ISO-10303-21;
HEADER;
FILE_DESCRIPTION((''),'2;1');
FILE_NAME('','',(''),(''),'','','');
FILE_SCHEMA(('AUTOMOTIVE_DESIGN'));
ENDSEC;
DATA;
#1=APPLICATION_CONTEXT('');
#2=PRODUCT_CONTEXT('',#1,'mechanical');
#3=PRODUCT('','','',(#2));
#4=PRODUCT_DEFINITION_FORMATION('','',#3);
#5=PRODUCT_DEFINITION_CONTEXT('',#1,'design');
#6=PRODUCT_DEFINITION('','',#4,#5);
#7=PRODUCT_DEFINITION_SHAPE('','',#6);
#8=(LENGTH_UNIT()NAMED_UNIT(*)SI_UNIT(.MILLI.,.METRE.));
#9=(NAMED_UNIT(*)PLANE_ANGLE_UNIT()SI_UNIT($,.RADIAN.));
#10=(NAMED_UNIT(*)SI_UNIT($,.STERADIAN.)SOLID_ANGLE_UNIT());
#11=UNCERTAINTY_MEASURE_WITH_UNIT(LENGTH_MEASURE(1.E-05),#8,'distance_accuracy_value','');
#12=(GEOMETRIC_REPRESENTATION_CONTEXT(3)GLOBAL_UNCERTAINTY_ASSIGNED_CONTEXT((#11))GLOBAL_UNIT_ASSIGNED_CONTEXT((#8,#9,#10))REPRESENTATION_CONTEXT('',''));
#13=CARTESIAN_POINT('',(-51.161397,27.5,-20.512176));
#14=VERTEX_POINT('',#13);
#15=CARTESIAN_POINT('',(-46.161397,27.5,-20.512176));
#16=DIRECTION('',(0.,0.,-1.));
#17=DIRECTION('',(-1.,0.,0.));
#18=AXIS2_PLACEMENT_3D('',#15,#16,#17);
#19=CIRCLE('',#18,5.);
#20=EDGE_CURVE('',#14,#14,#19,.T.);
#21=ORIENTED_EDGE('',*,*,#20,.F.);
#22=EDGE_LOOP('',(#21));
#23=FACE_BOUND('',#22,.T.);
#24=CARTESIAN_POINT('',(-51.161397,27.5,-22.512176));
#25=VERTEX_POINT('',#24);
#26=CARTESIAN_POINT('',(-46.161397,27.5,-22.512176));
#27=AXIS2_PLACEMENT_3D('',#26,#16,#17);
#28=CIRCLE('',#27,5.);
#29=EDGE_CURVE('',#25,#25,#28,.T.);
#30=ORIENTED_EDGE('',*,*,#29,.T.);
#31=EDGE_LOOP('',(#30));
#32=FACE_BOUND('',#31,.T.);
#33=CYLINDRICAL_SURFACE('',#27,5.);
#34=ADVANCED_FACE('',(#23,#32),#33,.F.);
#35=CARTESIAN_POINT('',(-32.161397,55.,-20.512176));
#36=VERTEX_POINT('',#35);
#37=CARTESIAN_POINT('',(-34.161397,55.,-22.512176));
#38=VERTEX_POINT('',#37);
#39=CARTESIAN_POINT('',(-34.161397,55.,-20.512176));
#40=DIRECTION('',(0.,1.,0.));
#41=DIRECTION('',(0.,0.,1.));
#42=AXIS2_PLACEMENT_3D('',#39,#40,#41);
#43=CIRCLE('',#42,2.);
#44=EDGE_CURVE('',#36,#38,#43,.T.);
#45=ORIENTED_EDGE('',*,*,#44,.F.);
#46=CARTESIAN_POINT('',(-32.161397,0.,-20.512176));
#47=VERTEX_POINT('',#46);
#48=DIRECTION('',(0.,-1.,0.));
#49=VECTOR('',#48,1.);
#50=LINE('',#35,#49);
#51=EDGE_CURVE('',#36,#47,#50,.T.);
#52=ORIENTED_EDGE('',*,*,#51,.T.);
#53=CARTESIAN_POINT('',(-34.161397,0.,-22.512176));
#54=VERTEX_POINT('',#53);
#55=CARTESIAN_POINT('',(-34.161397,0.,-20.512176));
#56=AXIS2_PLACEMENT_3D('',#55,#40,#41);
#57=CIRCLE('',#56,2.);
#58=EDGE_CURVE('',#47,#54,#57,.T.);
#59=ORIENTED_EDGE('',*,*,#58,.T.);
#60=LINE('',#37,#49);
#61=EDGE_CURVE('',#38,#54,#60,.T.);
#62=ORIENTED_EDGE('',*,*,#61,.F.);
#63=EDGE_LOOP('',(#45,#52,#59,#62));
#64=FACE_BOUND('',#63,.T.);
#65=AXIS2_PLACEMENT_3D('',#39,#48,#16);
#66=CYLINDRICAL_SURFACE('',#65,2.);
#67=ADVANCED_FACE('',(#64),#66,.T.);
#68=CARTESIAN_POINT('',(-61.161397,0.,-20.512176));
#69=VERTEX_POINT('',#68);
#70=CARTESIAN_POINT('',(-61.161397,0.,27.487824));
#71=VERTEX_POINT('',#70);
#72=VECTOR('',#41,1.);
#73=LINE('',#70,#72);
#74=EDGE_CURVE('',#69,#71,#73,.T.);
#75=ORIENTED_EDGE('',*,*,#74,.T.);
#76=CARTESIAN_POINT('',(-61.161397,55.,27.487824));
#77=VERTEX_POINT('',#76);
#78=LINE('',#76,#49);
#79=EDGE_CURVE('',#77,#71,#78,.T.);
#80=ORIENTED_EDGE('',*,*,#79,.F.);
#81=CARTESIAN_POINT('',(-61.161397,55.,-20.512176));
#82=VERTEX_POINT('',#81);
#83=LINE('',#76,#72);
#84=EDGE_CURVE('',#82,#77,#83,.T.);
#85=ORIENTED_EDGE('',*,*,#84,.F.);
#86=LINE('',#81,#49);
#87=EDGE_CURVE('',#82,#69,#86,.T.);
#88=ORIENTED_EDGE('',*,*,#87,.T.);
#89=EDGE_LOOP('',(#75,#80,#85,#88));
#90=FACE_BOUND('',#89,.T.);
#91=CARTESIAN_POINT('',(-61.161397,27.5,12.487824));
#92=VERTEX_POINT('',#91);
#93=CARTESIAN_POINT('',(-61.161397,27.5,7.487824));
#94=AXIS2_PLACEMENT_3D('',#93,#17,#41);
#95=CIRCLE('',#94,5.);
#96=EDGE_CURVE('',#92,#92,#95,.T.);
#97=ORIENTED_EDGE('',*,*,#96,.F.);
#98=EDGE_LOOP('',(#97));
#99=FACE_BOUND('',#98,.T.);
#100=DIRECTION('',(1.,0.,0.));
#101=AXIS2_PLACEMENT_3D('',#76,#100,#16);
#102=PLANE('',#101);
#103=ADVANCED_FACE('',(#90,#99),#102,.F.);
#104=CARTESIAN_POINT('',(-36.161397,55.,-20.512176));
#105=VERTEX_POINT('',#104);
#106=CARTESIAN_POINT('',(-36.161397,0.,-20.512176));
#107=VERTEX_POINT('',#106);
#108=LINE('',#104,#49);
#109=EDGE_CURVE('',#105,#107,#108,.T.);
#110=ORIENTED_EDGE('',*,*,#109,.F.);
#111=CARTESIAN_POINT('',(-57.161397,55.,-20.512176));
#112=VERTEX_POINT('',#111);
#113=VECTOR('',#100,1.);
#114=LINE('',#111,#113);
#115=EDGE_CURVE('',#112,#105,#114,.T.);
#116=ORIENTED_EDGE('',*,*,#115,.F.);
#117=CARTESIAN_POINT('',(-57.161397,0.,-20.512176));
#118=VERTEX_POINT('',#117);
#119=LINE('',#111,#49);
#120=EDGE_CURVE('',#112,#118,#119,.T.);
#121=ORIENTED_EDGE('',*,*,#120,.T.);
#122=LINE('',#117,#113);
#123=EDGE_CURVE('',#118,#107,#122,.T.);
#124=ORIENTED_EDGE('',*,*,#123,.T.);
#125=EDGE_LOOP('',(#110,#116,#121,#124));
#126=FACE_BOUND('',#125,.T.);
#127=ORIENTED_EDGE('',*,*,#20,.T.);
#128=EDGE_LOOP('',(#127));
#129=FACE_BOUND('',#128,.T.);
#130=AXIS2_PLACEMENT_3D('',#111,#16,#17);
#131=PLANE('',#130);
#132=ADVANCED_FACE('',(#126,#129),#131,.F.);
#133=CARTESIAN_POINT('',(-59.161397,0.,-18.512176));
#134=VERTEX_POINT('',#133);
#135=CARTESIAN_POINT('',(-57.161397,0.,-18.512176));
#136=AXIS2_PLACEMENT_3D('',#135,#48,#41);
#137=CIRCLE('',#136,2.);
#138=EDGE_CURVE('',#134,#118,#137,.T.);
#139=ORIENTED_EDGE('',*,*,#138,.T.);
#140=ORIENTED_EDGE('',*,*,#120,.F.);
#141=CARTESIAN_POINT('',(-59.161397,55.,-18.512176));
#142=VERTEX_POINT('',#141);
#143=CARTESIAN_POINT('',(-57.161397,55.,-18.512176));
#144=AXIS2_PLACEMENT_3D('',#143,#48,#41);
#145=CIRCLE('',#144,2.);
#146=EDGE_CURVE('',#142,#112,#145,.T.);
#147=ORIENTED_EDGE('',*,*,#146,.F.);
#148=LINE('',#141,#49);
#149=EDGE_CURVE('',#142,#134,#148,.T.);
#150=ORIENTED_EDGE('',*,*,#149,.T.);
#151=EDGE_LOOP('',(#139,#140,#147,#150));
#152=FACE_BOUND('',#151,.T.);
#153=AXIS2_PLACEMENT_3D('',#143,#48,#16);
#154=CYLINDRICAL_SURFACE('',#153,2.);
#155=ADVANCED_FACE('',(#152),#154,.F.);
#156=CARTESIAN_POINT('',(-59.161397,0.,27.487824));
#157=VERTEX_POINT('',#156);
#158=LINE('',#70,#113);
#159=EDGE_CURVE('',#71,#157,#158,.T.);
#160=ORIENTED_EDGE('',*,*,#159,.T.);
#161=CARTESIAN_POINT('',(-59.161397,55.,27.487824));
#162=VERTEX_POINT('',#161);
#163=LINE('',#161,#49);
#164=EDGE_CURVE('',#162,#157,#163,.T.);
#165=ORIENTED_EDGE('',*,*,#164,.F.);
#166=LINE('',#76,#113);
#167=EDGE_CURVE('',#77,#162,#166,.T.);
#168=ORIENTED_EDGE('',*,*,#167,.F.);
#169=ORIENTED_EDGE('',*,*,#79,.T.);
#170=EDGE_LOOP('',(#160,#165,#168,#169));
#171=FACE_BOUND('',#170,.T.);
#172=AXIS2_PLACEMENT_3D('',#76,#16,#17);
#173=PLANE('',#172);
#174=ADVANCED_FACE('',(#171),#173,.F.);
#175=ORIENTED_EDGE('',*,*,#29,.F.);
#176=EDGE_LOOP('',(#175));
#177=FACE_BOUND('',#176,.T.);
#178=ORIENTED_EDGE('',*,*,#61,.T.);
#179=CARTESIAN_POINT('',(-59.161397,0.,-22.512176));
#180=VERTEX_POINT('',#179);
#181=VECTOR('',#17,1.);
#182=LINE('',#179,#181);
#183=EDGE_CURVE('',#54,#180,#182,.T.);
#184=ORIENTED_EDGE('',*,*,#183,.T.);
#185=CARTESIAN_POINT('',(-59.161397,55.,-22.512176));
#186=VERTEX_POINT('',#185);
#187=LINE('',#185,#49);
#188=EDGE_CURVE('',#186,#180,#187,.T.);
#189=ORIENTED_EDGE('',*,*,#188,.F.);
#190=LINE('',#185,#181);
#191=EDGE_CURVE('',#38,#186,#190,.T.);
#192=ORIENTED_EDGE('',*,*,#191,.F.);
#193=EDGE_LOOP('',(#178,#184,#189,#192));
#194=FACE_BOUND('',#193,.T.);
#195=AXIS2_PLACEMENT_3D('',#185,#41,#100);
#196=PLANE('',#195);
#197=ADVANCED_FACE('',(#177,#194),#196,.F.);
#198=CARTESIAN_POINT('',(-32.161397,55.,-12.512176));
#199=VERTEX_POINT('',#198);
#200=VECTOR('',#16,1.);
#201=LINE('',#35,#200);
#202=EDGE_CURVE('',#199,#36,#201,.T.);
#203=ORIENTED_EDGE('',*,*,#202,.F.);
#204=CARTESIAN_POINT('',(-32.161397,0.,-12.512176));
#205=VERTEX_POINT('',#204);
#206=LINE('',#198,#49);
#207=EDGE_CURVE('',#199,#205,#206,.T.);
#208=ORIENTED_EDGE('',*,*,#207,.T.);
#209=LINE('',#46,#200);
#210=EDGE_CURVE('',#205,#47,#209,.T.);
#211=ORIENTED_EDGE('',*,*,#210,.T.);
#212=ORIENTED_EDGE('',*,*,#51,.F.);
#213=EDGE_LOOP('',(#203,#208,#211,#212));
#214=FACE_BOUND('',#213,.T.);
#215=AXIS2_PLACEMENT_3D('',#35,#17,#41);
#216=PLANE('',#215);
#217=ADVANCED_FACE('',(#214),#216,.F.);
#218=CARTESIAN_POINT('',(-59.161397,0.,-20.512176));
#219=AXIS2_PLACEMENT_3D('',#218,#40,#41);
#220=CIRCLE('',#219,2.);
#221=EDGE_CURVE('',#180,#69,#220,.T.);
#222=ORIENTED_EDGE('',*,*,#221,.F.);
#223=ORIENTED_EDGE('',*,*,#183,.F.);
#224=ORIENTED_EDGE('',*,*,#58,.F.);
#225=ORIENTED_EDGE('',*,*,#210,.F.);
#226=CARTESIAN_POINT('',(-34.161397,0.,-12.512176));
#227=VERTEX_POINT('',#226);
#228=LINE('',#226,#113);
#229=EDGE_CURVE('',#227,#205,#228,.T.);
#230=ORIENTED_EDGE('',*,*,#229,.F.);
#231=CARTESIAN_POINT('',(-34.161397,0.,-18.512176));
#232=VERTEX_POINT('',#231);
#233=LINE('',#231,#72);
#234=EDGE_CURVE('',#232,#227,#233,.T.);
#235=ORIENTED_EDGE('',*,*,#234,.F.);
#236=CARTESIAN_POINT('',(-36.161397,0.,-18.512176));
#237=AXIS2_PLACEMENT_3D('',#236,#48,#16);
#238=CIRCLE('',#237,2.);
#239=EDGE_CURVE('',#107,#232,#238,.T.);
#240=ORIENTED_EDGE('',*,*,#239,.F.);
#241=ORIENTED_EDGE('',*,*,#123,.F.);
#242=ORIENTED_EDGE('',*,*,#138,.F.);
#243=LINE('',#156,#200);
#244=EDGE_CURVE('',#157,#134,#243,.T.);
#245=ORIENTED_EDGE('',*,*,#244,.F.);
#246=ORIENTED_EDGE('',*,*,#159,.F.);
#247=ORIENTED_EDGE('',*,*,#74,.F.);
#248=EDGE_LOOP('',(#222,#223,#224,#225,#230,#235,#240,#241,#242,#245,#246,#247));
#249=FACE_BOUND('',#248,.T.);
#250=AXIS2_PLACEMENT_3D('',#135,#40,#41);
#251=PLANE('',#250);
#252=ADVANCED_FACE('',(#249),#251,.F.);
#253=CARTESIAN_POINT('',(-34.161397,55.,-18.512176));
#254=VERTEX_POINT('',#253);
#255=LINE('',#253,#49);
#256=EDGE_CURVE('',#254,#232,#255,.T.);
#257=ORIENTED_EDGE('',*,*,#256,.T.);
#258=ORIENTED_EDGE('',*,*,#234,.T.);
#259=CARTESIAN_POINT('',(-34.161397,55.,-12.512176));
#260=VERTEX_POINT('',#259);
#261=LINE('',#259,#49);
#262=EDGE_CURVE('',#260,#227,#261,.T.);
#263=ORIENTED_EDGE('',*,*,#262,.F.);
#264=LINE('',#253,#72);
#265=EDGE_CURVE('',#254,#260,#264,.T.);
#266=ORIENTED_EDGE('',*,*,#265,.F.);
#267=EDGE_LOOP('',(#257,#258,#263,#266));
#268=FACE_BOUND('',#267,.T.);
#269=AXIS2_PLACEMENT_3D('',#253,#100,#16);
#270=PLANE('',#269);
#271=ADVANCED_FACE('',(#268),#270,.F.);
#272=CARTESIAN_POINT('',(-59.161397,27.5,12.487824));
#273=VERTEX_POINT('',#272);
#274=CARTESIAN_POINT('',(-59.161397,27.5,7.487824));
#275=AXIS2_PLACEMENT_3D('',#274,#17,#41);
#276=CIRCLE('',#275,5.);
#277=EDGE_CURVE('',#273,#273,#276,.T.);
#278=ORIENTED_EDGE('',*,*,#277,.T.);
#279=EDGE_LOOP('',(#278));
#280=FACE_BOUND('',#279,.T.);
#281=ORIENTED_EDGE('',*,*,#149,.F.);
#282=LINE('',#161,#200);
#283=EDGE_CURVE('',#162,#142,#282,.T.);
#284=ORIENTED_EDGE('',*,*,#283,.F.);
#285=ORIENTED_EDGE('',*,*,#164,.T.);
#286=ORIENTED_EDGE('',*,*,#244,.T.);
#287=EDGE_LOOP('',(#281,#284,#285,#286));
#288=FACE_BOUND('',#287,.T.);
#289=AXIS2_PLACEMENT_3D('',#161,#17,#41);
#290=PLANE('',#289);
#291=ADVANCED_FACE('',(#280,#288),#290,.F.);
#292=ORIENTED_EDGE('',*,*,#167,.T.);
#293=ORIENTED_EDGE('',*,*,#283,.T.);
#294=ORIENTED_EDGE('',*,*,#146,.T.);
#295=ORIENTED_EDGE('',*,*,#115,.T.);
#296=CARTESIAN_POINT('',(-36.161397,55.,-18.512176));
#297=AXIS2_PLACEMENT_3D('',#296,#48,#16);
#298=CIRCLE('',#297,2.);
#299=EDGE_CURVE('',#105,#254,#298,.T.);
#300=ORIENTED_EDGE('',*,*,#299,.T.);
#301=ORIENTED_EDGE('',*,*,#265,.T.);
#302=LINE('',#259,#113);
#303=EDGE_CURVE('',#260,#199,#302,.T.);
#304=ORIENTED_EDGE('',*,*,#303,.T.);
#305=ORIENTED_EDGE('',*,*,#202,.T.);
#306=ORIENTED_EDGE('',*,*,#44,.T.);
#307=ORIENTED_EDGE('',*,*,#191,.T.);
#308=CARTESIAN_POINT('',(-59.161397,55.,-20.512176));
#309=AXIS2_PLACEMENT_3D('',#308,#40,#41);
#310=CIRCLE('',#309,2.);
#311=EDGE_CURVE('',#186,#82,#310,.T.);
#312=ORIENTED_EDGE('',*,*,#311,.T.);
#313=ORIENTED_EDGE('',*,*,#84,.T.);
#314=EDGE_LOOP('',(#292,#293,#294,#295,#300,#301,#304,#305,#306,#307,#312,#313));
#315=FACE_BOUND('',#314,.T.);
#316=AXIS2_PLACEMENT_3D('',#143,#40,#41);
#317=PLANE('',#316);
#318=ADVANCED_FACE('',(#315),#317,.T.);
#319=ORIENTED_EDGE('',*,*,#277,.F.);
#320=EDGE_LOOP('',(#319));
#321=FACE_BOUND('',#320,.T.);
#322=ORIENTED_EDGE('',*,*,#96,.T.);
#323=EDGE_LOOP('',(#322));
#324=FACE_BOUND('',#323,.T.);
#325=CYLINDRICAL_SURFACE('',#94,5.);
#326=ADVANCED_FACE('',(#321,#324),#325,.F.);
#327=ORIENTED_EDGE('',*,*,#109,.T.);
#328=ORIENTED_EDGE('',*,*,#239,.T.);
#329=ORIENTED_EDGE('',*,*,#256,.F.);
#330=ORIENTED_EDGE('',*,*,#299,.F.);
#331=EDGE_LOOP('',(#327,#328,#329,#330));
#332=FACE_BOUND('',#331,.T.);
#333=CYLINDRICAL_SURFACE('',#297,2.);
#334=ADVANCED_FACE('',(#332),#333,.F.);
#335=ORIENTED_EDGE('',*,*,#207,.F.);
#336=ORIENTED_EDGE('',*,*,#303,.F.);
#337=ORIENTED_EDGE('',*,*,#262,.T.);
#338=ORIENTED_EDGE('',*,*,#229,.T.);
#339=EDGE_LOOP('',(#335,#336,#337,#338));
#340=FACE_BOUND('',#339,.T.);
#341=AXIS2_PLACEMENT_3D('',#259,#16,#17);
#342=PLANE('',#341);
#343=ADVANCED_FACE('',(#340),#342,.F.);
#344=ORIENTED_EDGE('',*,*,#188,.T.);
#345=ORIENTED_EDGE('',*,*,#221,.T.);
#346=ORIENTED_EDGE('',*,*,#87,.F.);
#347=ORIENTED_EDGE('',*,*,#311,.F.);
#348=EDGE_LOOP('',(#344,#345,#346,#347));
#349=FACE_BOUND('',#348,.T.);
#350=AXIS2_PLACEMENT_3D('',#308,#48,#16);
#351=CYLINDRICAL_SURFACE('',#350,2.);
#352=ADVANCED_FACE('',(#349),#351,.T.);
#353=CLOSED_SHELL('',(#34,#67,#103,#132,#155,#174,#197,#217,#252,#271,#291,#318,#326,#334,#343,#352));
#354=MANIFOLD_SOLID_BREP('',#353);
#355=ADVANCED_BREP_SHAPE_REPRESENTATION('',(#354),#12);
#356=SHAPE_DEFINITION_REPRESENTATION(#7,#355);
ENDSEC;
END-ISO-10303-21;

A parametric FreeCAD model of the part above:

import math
import FreeCAD as App
import Part
import Sketcher

V = App.Vector

doc = App.newDocument("Part")
body = doc.addObject("PartDesign::Body", "Body")

sketch1 = body.newObject("Sketcher::SketchObject", "Sketch")
sketch1.AttachmentSupport = (doc.getObject("XZ_Plane"), [""])
sketch1.MapMode = "FlatFace"
sketch1.addGeometry(Part.LineSegment(V(-61.2, -20.5, 0), V(-61.2, 27.5, 0)), False)
sketch1.addGeometry(Part.LineSegment(V(-61.2, 27.5, 0), V(-59.2, 27.5, 0)), False)
sketch1.addGeometry(Part.LineSegment(V(-59.2, 27.5, 0), V(-59.2, -18.5, 0)), False)
sketch1.addGeometry(Part.ArcOfCircle(Part.Circle(V(-57.2, -18.5, 0), V(0, 0, 1), 2), math.radians(-180), math.radians(-90)), False)
sketch1.addGeometry(Part.LineSegment(V(-57.2, -20.5, 0), V(-36.2, -20.5, 0)), False)
sketch1.addGeometry(Part.ArcOfCircle(Part.Circle(V(-36.2, -18.5, 0), V(0, 0, 1), 2), math.radians(-90), math.radians(0)), False)
sketch1.addGeometry(Part.LineSegment(V(-34.2, -18.5, 0), V(-34.2, -12.5, 0)), False)
sketch1.addGeometry(Part.LineSegment(V(-34.2, -12.5, 0), V(-32.2, -12.5, 0)), False)
sketch1.addGeometry(Part.LineSegment(V(-32.2, -12.5, 0), V(-32.2, -20.5, 0)), False)
sketch1.addGeometry(Part.ArcOfCircle(Part.Circle(V(-34.2, -20.5, 0), V(0, 0, 1), 2), math.radians(-90), math.radians(0)), False)
sketch1.addGeometry(Part.LineSegment(V(-34.2, -22.5, 0), V(-59.2, -22.5, 0)), False)
sketch1.addGeometry(Part.ArcOfCircle(Part.Circle(V(-59.2, -20.5, 0), V(0, 0, 1), 2), math.radians(-180), math.radians(-90)), False)
sketch1.addConstraint(Sketcher.Constraint("Coincident", 0, 2, 1, 1))
sketch1.addConstraint(Sketcher.Constraint("Coincident", 1, 2, 2, 1))
sketch1.addConstraint(Sketcher.Constraint("Tangent", 2, 2, 3, 1))
sketch1.addConstraint(Sketcher.Constraint("Tangent", 3, 2, 4, 1))
sketch1.addConstraint(Sketcher.Constraint("Tangent", 4, 2, 5, 1))
sketch1.addConstraint(Sketcher.Constraint("Tangent", 5, 2, 6, 1))
sketch1.addConstraint(Sketcher.Constraint("Coincident", 6, 2, 7, 1))
sketch1.addConstraint(Sketcher.Constraint("Coincident", 7, 2, 8, 1))
sketch1.addConstraint(Sketcher.Constraint("Tangent", 8, 2, 9, 2))
sketch1.addConstraint(Sketcher.Constraint("Tangent", 9, 1, 10, 1))
sketch1.addConstraint(Sketcher.Constraint("Tangent", 10, 2, 11, 2))
sketch1.addConstraint(Sketcher.Constraint("Tangent", 11, 1, 0, 1))
sketch1.addConstraint(Sketcher.Constraint("Vertical", 0))
sketch1.addConstraint(Sketcher.Constraint("Horizontal", 1))
sketch1.addConstraint(Sketcher.Constraint("Vertical", 2))
sketch1.addConstraint(Sketcher.Constraint("Horizontal", 4))
sketch1.addConstraint(Sketcher.Constraint("Vertical", 6))
sketch1.addConstraint(Sketcher.Constraint("Horizontal", 7))
sketch1.addConstraint(Sketcher.Constraint("Vertical", 8))
sketch1.addConstraint(Sketcher.Constraint("Horizontal", 10))
sketch1.addConstraint(Sketcher.Constraint("Equal", 3, 5))
sketch1.addConstraint(Sketcher.Constraint("Equal", 5, 9))
sketch1.addConstraint(Sketcher.Constraint("Equal", 9, 11))
sketch1.addConstraint(Sketcher.Constraint("Horizontal", 11, 3, 3, 2))
sketch1.addConstraint(Sketcher.Constraint("Vertical", 11, 3, 1, 2))
sketch1.addConstraint(Sketcher.Constraint("Vertical", 9, 3, 5, 2))
sketch1.addConstraint(Sketcher.Constraint("Radius", 3, 2.0))
sketch1.addConstraint(Sketcher.Constraint("DistanceX", 4, 1, 4, 2, 21.0))
sketch1.addConstraint(Sketcher.Constraint("DistanceY", 0, 1, 0, 2, 48.0))
sketch1.addConstraint(Sketcher.Constraint("DistanceY", 6, 1, 6, 2, 6.0))
sketch1.addConstraint(Sketcher.Constraint("DistanceX", 3, 3, -1, 1, 57.161397))
sketch1.addConstraint(Sketcher.Constraint("DistanceY", 3, 3, -1, 1, 18.512176))
pad1 = body.newObject("PartDesign::Pad", "Pad")
pad1.Profile = sketch1
pad1.Length = 55
pad1.Reversed = True

sketch2 = body.newObject("Sketcher::SketchObject", "Sketch001")
sketch2.AttachmentSupport = (doc.getObject("XY_Plane"), [""])
sketch2.MapMode = "FlatFace"
sketch2.AttachmentOffset = App.Placement(V(0, 0, -22.512176), App.Rotation())
sketch2.addGeometry(Part.Circle(V(-46.2, 27.5, 0), V(0, 0, 1), 4.5), False)
sketch2.addConstraint(Sketcher.Constraint("Diameter", 0, 9.0))
sketch2.addConstraint(Sketcher.Constraint("DistanceY", -1, 1, 0, 3, 27.5))
sketch2.addConstraint(Sketcher.Constraint("DistanceX", 0, 3, -1, 1, 46.161397))
doc.recompute()
hole = body.newObject("PartDesign::Hole", "Hole")
hole.Profile = sketch2
hole.ThreadType = "None"
hole.Diameter = 9
hole.DepthType = "Dimension"
hole.Depth = 23
hole.DrillPoint = "Angled"
hole.DrillPointAngle = 118
hole.HoleCutType = "Counterbore"
hole.HoleCutDiameter = 10
hole.HoleCutDepth = 20
hole.Reversed = True

sketch3 = body.newObject("Sketcher::SketchObject", "Sketch002")
sketch3.AttachmentSupport = (doc.getObject("YZ_Plane"), [""])
sketch3.MapMode = "FlatFace"
sketch3.AttachmentOffset = App.Placement(V(0, 0, -61.161397), App.Rotation())
sketch3.addGeometry(Part.Circle(V(27.5, 7.5, 0), V(0, 0, 1), 4.5), False)
sketch3.addConstraint(Sketcher.Constraint("Diameter", 0, 9.0))
sketch3.addConstraint(Sketcher.Constraint("DistanceX", -1, 1, 0, 3, 27.5))
sketch3.addConstraint(Sketcher.Constraint("DistanceY", -1, 1, 0, 3, 7.487824))
doc.recompute()
hole2 = body.newObject("PartDesign::Hole", "Hole001")
hole2.Profile = sketch3
hole2.ThreadType = "None"
hole2.Diameter = 9
hole2.DepthType = "Dimension"
hole2.Depth = 23
hole2.DrillPoint = "Angled"
hole2.DrillPointAngle = 118
hole2.HoleCutType = "Counterbore"
hole2.HoleCutDiameter = 10
hole2.HoleCutDepth = 20
hole2.Reversed = True

doc.recompute()
